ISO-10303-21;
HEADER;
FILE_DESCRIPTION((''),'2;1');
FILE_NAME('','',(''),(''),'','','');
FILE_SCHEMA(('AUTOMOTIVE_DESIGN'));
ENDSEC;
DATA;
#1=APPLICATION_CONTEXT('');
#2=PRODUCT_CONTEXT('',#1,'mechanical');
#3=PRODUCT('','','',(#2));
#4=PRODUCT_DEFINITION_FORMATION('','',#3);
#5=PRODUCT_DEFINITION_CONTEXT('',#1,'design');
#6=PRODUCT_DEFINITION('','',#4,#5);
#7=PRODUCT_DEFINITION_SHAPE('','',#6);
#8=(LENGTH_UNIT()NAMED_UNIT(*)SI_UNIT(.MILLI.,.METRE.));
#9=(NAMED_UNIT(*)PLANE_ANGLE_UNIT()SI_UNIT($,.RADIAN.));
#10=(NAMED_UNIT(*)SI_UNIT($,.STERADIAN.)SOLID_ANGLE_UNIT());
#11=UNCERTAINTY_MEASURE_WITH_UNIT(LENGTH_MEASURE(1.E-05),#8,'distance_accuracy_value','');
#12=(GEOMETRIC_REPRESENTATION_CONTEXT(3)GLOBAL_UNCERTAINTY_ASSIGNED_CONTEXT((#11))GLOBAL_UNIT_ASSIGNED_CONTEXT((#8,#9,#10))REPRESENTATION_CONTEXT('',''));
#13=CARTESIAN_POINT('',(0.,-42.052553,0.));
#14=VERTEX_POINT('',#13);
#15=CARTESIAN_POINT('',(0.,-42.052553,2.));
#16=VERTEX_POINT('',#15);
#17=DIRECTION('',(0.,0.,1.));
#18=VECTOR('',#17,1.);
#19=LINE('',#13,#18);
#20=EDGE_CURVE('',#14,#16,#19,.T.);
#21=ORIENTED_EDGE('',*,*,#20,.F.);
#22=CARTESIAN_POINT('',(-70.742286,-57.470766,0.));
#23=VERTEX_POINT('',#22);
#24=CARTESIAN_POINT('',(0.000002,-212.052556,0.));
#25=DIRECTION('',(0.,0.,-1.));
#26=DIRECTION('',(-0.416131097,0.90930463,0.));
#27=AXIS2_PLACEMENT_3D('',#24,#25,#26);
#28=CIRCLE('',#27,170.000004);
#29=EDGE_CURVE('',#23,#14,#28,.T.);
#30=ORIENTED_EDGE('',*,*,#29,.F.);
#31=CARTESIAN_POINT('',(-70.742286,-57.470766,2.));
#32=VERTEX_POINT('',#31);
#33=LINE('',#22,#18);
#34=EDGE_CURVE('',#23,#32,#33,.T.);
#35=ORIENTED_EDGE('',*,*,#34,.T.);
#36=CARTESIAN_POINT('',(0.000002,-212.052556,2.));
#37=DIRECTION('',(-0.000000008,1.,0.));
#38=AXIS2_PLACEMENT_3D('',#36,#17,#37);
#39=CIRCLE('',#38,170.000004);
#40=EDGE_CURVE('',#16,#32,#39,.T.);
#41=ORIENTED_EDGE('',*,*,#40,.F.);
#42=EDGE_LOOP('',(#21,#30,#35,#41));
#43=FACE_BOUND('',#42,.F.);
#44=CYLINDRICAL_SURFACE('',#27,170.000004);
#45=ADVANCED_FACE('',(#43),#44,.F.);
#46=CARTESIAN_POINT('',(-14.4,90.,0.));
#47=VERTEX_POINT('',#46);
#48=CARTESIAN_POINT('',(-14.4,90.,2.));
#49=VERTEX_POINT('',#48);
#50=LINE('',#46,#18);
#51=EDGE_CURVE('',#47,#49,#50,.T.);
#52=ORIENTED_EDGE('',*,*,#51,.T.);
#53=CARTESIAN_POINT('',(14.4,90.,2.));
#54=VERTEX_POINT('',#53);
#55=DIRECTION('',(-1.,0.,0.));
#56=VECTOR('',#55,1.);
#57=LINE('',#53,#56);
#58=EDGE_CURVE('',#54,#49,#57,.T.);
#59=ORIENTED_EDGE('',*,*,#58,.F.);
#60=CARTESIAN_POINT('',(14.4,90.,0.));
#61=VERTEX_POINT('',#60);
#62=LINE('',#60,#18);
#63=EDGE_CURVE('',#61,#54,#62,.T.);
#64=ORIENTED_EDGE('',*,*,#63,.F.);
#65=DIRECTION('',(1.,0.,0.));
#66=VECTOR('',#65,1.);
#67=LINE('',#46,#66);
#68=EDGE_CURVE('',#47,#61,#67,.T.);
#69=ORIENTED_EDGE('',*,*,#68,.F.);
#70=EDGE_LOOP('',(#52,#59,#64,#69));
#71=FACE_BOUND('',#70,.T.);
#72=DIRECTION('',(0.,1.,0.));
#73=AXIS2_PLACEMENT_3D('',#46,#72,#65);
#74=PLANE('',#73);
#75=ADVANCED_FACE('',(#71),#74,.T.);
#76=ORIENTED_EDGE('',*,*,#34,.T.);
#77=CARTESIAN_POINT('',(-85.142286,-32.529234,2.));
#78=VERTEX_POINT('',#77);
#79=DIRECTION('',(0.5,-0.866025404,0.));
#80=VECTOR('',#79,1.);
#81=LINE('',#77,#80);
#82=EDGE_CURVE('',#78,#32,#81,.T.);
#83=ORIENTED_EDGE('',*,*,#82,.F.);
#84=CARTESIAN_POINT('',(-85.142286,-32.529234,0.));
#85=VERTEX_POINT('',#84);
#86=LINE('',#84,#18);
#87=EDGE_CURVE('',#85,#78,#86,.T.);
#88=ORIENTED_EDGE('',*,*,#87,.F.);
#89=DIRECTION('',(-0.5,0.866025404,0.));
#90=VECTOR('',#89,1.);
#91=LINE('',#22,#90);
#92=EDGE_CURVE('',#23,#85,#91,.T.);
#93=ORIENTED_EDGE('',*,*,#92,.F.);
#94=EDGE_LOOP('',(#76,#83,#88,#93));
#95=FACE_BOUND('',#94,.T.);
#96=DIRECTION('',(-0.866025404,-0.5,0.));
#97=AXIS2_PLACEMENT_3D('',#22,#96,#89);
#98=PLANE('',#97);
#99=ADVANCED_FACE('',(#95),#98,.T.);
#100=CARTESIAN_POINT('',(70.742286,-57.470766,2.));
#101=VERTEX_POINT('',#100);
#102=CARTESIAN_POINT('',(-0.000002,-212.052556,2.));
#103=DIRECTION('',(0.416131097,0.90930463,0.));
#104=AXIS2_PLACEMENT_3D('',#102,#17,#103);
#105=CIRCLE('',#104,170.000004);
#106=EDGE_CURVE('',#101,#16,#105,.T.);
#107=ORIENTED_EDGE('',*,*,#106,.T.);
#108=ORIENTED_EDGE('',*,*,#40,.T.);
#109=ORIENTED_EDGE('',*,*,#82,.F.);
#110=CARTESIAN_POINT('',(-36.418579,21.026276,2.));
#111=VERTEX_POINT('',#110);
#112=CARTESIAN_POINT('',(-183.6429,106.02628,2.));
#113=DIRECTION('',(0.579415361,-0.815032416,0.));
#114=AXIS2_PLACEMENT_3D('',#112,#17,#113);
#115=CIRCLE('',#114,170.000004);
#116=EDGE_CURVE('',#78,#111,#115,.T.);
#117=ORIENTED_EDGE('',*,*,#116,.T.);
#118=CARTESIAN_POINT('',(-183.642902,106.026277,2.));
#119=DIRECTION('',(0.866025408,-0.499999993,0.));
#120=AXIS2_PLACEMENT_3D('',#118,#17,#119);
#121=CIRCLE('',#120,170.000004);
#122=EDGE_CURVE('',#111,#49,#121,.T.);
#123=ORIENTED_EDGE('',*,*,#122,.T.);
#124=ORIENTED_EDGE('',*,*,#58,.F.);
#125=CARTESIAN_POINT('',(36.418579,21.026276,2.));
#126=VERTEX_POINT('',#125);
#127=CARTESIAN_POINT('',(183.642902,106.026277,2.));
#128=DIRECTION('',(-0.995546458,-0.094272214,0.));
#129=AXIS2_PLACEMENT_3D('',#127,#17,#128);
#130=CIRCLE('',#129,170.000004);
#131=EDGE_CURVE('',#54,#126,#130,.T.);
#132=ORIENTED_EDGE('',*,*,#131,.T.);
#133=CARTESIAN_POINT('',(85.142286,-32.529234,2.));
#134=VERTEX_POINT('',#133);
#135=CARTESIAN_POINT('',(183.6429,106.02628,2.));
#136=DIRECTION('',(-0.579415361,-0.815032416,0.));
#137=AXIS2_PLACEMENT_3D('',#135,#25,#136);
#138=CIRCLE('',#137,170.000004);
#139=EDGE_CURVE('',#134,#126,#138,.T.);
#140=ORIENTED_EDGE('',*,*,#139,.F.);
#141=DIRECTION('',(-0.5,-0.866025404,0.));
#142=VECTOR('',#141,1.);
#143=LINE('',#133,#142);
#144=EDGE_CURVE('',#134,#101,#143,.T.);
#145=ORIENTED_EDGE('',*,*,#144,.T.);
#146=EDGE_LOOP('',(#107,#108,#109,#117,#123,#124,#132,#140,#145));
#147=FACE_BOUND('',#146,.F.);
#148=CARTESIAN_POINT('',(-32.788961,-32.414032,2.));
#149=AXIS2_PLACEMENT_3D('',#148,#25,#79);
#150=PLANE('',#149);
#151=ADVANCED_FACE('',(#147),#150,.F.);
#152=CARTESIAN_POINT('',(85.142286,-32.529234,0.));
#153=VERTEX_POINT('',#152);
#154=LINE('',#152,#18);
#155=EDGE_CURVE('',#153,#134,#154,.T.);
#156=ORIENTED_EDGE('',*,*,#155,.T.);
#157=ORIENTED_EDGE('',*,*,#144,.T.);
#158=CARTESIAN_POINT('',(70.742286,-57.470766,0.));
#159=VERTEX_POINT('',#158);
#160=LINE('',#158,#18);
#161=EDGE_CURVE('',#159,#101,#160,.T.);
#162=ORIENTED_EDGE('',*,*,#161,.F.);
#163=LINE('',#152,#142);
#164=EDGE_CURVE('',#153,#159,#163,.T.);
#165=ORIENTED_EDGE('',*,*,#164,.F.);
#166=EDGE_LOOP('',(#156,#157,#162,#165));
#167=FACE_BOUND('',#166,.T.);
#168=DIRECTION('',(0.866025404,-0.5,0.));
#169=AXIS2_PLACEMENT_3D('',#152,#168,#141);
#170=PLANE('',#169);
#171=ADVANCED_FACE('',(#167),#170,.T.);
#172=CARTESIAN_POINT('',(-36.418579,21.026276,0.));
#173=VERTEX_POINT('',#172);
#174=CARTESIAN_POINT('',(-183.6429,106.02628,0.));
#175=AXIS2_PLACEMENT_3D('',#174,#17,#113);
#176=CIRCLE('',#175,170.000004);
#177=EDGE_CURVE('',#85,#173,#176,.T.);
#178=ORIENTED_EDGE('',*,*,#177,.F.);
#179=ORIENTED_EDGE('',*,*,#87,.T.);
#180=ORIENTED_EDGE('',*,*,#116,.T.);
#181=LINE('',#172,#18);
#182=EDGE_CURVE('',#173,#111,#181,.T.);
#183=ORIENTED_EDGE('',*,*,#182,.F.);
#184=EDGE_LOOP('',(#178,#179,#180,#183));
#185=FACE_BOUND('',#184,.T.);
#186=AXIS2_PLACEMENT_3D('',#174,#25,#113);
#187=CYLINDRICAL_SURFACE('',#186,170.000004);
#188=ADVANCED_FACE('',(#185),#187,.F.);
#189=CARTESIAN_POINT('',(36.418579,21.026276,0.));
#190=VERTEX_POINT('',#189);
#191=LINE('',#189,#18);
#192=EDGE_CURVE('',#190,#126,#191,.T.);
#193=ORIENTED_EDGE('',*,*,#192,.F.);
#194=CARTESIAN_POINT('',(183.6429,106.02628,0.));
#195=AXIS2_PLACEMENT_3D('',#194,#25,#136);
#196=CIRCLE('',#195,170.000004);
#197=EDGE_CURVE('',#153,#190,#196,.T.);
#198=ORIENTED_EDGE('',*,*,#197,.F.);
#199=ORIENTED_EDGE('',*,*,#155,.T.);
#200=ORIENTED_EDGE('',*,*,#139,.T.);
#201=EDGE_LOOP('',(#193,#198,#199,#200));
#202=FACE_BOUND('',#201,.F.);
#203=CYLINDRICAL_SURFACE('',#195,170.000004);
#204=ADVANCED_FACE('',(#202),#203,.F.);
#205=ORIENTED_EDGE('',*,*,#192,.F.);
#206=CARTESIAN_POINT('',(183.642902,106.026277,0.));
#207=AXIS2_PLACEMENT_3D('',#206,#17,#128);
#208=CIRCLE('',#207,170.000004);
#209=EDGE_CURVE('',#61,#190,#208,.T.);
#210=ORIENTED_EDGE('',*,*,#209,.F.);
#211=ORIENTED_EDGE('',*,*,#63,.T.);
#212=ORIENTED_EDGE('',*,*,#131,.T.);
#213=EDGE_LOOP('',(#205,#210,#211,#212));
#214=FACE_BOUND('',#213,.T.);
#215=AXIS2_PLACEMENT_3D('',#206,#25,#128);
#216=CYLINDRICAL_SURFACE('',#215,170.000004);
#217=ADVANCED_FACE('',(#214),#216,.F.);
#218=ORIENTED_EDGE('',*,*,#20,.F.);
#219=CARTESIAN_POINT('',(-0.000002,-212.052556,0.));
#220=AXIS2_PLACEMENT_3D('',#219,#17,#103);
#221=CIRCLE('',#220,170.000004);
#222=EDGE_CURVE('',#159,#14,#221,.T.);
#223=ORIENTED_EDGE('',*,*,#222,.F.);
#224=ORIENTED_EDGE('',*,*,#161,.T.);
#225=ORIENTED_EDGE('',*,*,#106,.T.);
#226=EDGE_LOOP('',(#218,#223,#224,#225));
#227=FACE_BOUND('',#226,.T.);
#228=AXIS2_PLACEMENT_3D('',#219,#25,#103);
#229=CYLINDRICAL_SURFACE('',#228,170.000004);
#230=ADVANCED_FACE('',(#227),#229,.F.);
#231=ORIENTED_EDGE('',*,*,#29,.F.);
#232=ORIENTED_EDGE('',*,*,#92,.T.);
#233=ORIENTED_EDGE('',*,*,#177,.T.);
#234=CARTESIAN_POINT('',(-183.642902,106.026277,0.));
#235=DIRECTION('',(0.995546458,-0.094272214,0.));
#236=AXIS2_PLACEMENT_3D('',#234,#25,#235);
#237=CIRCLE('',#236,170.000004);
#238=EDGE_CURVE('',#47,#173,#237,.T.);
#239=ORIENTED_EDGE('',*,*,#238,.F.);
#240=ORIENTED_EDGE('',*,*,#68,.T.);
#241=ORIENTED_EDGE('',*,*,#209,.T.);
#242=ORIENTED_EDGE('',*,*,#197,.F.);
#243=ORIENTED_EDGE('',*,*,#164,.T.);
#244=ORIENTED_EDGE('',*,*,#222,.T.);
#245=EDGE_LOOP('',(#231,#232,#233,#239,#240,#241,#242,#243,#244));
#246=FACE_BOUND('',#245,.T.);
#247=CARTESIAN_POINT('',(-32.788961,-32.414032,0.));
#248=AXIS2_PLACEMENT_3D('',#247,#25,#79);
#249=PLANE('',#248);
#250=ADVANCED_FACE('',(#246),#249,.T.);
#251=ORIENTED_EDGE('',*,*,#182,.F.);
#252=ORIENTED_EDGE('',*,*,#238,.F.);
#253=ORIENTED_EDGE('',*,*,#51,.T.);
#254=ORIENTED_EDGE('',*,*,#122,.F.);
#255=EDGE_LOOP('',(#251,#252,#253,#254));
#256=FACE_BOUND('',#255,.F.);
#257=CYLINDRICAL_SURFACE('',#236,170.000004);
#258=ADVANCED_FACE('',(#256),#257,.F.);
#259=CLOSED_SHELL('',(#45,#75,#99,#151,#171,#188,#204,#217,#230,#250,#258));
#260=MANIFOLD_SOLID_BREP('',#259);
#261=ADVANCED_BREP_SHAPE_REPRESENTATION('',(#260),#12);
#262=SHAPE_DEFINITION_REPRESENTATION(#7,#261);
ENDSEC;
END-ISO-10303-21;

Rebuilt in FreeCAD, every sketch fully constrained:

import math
import FreeCAD as App
import Part
import Sketcher
from FreeCAD import Vector
Q = App.Units.Quantity

doc = App.newDocument("Part")
body = doc.addObject("PartDesign::Body", "Body")

# Sketch on XY plane
sketch1 = body.newObject("Sketcher::SketchObject", "Sketch")
sketch1.AttachmentSupport = (doc.getObject("XY_Plane"), [""])
sketch1.MapMode = "FlatFace"
sketch1.addGeometry([
    Part.LineSegment(Vector(0, 0, 0), Vector(36, 21, 0)),
    Part.ArcOfCircle(Part.Circle(Vector(184, 106, 0), Vector(0, 0, 1), 170), math.radians(-175), math.radians(-150)),
    Part.LineSegment(Vector(14, 90, 0), Vector(0, 90, 0)),
    Part.LineSegment(Vector(0, 90, 0), Vector(0, 0, 0)),
], False)
sketch1.addConstraint([
    Sketcher.Constraint("Coincident", 0, 2, 1, 2),
    Sketcher.Constraint("Coincident", 1, 1, 2, 1),
    Sketcher.Constraint("Coincident", 2, 2, 3, 1),
    Sketcher.Constraint("Coincident", 3, 2, 0, 1),
    Sketcher.Constraint("Horizontal", 2),
    Sketcher.Constraint("Vertical", 3),
    Sketcher.Constraint("Coincident", 3, 2, -1, 1),
    Sketcher.Constraint("DistanceY", 3, 2, 3, 1, Q("90 mm")),
    Sketcher.Constraint("Angle", 0, Q("30 deg")),
    Sketcher.Constraint("DistanceX", 2, 2, 2, 1, Q("14.4 mm")),
    Sketcher.Constraint("DistanceY", 0, 2, 1, 3, Q("85.000001 mm")),
    Sketcher.Constraint("Radius", 1, Q("170.000004 mm")),
])
pad1 = body.newObject("PartDesign::Pad", "Pad")
pad1.Profile = sketch1
pad1.Length = 2

# Sketch on XY plane
sketch2 = body.newObject("Sketcher::SketchObject", "Sketch001")
sketch2.AttachmentSupport = (doc.getObject("XY_Plane"), [""])
sketch2.MapMode = "FlatFace"
sketch2.addGeometry([
    Part.LineSegment(Vector(0, 0, 0), Vector(-36, 21, 0)),
    Part.ArcOfCircle(Part.Circle(Vector(-184, 106, 0), Vector(0, 0, 1), 170), math.radians(-30), math.radians(-5)),
    Part.LineSegment(Vector(-14, 90, 0), Vector(0, 90, 0)),
    Part.LineSegment(Vector(0, 90, 0), Vector(0, 0, 0)),
], False)
sketch2.addConstraint([
    Sketcher.Constraint("Coincident", 0, 2, 1, 1),
    Sketcher.Constraint("Coincident", 1, 2, 2, 1),
    Sketcher.Constraint("Coincident", 2, 2, 3, 1),
    Sketcher.Constraint("Coincident", 3, 2, 0, 1),
    Sketcher.Constraint("Horizontal", 2),
    Sketcher.Constraint("Vertical", 3),
    Sketcher.Constraint("Coincident", 3, 2, -1, 1),
    Sketcher.Constraint("DistanceY", 3, 2, 3, 1, Q("90 mm")),
    Sketcher.Constraint("Angle", 0, Q("150 deg")),
    Sketcher.Constraint("DistanceX", 2, 1, 2, 2, Q("14.4 mm")),
    Sketcher.Constraint("DistanceY", 0, 2, 1, 3, Q("85.000001 mm")),
    Sketcher.Constraint("Radius", 1, Q("170.000004 mm")),
])
pad2 = body.newObject("PartDesign::Pad", "Pad001")
pad2.Profile = sketch2
pad2.Length = 2
doc.recompute()

polarpattern = body.newObject("PartDesign::PolarPattern", "PolarPattern")
polarpattern.Originals = [pad1, pad2]
polarpattern.Axis = (doc.getObject("Z_Axis"), [""])
polarpattern.Angle = 360
polarpattern.Occurrences = 3
body.Tip = polarpattern

doc.recompute()
